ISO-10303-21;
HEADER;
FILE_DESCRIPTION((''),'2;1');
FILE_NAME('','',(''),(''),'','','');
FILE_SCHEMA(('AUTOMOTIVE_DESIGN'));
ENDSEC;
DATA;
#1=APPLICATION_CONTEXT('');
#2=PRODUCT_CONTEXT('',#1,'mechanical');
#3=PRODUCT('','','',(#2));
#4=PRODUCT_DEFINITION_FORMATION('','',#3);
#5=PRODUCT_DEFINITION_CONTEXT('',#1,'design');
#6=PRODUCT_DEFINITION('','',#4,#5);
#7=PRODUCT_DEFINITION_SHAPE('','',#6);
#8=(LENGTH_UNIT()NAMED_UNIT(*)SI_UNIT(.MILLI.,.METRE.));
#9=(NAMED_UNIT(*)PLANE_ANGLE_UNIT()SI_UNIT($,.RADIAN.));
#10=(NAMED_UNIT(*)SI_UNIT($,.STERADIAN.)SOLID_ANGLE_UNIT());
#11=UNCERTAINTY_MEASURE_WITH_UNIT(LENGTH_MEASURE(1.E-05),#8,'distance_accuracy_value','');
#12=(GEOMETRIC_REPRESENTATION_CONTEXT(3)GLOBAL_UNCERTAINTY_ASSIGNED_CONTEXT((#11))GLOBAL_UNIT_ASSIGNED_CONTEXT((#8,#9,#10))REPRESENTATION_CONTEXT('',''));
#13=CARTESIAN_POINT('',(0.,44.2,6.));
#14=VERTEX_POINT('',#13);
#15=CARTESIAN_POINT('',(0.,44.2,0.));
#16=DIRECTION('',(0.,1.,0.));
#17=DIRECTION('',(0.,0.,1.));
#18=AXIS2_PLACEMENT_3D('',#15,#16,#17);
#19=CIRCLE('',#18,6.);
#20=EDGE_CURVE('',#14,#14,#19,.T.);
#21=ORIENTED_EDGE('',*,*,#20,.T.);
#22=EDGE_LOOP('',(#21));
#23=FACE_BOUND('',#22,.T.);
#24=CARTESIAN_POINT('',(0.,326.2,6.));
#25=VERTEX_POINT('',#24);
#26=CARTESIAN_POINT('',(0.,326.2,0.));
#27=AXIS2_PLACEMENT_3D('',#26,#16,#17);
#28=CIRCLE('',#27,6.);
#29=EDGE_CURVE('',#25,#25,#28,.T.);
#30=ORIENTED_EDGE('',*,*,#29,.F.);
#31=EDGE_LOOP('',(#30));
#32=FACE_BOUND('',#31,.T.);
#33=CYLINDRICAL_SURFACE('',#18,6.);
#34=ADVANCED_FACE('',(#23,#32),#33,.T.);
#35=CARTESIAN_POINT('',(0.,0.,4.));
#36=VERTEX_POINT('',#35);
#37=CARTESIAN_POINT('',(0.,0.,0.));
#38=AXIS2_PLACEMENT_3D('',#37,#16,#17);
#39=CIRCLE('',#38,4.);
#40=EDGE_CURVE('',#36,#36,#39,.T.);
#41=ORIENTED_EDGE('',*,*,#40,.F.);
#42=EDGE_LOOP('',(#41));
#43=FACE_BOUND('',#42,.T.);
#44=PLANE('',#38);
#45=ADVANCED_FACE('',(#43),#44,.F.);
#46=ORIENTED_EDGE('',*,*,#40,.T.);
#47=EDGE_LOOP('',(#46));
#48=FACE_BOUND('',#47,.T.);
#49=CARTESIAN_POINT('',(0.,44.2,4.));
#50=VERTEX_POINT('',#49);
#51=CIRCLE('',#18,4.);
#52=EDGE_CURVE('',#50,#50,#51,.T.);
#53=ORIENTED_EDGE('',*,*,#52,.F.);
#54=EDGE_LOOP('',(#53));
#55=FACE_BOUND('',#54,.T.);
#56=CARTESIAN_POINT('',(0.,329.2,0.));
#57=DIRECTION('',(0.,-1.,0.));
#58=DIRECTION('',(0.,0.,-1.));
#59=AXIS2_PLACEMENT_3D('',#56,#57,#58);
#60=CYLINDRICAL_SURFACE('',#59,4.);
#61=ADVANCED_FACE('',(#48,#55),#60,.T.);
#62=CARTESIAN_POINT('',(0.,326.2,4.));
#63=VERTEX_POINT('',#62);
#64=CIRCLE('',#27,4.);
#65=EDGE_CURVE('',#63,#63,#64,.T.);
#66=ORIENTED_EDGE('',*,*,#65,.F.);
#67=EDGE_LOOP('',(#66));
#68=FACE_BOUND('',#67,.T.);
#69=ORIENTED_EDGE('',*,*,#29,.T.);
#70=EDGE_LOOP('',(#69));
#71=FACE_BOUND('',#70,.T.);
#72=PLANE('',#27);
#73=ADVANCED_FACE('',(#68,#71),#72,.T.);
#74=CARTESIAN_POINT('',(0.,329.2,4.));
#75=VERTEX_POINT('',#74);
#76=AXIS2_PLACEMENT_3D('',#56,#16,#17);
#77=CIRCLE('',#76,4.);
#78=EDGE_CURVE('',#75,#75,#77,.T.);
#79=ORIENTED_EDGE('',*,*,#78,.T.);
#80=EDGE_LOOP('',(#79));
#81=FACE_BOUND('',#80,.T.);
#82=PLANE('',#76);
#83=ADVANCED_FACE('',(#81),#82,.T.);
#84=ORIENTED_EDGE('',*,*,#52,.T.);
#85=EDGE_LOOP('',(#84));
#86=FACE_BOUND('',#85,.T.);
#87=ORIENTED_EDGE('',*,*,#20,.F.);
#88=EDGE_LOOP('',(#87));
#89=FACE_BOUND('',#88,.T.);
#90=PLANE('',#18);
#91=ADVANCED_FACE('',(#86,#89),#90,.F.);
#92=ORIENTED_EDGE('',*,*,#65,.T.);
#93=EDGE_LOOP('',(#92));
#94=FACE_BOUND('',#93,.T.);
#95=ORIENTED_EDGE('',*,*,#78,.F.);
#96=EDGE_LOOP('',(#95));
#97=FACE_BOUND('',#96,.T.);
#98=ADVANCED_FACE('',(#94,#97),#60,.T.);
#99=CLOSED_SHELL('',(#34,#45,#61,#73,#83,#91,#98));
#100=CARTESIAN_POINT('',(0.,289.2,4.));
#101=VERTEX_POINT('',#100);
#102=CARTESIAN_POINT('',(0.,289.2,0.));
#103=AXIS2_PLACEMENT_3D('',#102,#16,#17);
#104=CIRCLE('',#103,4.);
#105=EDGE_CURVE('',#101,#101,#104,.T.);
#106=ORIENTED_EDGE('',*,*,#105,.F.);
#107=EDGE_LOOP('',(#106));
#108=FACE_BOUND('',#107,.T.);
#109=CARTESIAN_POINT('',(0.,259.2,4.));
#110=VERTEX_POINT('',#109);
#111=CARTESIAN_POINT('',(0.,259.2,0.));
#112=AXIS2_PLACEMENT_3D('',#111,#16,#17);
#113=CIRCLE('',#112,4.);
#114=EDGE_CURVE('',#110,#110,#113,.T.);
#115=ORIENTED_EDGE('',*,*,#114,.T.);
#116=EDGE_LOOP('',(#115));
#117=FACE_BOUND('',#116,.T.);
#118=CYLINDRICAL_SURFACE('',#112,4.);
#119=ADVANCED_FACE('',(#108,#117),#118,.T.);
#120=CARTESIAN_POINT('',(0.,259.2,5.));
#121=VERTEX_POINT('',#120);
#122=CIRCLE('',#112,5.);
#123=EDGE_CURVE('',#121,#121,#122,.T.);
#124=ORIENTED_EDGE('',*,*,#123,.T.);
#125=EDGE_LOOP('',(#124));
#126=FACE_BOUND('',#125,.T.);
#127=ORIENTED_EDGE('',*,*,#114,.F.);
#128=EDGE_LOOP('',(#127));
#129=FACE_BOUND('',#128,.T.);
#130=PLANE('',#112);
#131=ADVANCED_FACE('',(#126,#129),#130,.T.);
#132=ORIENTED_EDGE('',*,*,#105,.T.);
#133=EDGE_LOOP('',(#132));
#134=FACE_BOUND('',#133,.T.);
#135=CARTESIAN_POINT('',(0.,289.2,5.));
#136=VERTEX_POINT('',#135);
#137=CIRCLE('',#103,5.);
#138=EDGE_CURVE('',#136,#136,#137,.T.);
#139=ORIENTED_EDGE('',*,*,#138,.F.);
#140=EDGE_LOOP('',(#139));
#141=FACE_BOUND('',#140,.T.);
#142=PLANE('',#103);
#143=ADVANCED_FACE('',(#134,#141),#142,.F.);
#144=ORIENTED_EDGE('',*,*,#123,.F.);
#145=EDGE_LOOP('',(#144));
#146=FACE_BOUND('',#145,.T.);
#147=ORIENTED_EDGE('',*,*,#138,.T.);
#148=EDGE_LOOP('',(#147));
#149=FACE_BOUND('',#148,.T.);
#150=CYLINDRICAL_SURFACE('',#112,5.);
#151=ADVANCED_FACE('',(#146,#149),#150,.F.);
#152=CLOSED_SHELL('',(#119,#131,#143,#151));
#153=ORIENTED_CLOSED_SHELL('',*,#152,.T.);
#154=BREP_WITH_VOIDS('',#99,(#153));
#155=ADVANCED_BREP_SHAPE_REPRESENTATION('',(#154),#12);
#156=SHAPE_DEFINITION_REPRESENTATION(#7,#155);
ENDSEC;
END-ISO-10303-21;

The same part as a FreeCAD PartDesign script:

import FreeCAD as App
import Part
import Sketcher
from FreeCAD import Vector

doc = App.newDocument("Part")
body = doc.addObject("PartDesign::Body", "Body")

sketch1 = doc.addObject("Sketcher::SketchObject", "Sketch")
body.addObject(sketch1)
sketch1.AttachmentSupport = (doc.XZ_Plane, [""])
sketch1.MapMode = "FlatFace"
sketch1.addGeometry(Part.Circle(Vector(0, 0, 0), Vector(0, 0, 1), 4), False)
sketch1.addConstraint(Sketcher.Constraint("Coincident", 0, 3, -1, 1))
sketch1.addConstraint(Sketcher.Constraint("Diameter", 0, 8.0))
pad1 = doc.addObject("PartDesign::Pad", "Pad")
body.addObject(pad1)
pad1.Profile = sketch1
pad1.Length = 329.2
pad1.Reversed = True

sketch2 = doc.addObject("Sketcher::SketchObject", "Sketch001")
body.addObject(sketch2)
sketch2.AttachmentSupport = (doc.XZ_Plane, [""])
sketch2.MapMode = "FlatFace"
sketch2.AttachmentOffset = App.Placement(Vector(0, 0, -326.2), App.Rotation())
sketch2.addGeometry(Part.Circle(Vector(0, 0, 0), Vector(0, 0, 1), 6), False)
sketch2.addConstraint(Sketcher.Constraint("Coincident", 0, 3, -1, 1))
sketch2.addConstraint(Sketcher.Constraint("Diameter", 0, 12.0))
pad2 = doc.addObject("PartDesign::Pad", "Pad001")
body.addObject(pad2)
pad2.Profile = sketch2
pad2.Length = 282

sketch3 = doc.addObject("Sketcher::SketchObject", "Sketch002")
body.addObject(sketch3)
sketch3.AttachmentSupport = (doc.XZ_Plane, [""])
sketch3.MapMode = "FlatFace"
sketch3.AttachmentOffset = App.Placement(Vector(0, 0, -289.2), App.Rotation())
sketch3.addGeometry(Part.Circle(Vector(0, 0, 0), Vector(0, 0, 1), 5), False)
sketch3.addGeometry(Part.Circle(Vector(0, 0, 0), Vector(0, 0, 1), 4), False)
sketch3.addConstraint(Sketcher.Constraint("Coincident", 0, 3, -1, 1))
sketch3.addConstraint(Sketcher.Constraint("Coincident", 1, 3, -1, 1))
sketch3.addConstraint(Sketcher.Constraint("Diameter", 0, 10.0))
sketch3.addConstraint(Sketcher.Constraint("Diameter", 1, 8.0))
pocket1 = doc.addObject("PartDesign::Pocket", "Pocket")
body.addObject(pocket1)
pocket1.Profile = sketch3
pocket1.Length = 30
pocket1.Reversed = True

doc.recompute()
